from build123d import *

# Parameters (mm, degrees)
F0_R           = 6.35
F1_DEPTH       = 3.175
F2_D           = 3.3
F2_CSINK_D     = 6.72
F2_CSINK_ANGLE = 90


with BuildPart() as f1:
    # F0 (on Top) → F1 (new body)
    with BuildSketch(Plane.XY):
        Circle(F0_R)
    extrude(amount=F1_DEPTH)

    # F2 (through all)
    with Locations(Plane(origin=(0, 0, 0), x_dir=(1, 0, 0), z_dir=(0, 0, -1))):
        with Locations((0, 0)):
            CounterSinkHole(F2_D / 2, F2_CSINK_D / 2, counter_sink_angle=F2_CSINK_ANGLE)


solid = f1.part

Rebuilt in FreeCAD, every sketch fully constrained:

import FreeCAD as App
import Part
import Sketcher

V = App.Vector
Q = App.Units.Quantity

doc = App.newDocument("Part")
body = doc.addObject("PartDesign::Body", "Body")

# Sketch on XY plane
sketch1 = body.newObject("Sketcher::SketchObject", "Sketch")
sketch1.AttachmentSupport = (doc.getObject("XY_Plane"), [""])
sketch1.MapMode = "FlatFace"
sketch1.addGeometry(Part.Circle(V(0, 0, 0), V(0, 0, 1), 6.35), False)
sketch1.addConstraint(Sketcher.Constraint("Coincident", 0, 3, -1, 1))
sketch1.addConstraint(Sketcher.Constraint("Diameter", 0, Q("0.5 in")))
pad1 = body.newObject("PartDesign::Pad", "Pad")
pad1.Profile = sketch1
pad1.Length = Q("0.125 in")

# Sketch on XY plane
sketch2 = body.newObject("Sketcher::SketchObject", "Sketch001")
sketch2.AttachmentSupport = (doc.getObject("XY_Plane"), [""])
sketch2.MapMode = "FlatFace"
sketch2.addGeometry(Part.Circle(V(0, 0, 0), V(0, 0, 1), 1.65), False)
sketch2.addConstraint(Sketcher.Constraint("Coincident", 0, 3, -1, 1))
sketch2.addConstraint(Sketcher.Constraint("Diameter", 0, 3.3))
doc.recompute()
hole = body.newObject("PartDesign::Hole", "Hole")
hole.Profile = sketch2
hole.ThreadType = "None"
hole.Diameter = 3.3
hole.DepthType = "ThroughAll"
hole.HoleCutType = "Countersink"
hole.HoleCutDiameter = 6.72
hole.HoleCutCountersinkAngle = 90
hole.Reversed = True

doc.recompute()
